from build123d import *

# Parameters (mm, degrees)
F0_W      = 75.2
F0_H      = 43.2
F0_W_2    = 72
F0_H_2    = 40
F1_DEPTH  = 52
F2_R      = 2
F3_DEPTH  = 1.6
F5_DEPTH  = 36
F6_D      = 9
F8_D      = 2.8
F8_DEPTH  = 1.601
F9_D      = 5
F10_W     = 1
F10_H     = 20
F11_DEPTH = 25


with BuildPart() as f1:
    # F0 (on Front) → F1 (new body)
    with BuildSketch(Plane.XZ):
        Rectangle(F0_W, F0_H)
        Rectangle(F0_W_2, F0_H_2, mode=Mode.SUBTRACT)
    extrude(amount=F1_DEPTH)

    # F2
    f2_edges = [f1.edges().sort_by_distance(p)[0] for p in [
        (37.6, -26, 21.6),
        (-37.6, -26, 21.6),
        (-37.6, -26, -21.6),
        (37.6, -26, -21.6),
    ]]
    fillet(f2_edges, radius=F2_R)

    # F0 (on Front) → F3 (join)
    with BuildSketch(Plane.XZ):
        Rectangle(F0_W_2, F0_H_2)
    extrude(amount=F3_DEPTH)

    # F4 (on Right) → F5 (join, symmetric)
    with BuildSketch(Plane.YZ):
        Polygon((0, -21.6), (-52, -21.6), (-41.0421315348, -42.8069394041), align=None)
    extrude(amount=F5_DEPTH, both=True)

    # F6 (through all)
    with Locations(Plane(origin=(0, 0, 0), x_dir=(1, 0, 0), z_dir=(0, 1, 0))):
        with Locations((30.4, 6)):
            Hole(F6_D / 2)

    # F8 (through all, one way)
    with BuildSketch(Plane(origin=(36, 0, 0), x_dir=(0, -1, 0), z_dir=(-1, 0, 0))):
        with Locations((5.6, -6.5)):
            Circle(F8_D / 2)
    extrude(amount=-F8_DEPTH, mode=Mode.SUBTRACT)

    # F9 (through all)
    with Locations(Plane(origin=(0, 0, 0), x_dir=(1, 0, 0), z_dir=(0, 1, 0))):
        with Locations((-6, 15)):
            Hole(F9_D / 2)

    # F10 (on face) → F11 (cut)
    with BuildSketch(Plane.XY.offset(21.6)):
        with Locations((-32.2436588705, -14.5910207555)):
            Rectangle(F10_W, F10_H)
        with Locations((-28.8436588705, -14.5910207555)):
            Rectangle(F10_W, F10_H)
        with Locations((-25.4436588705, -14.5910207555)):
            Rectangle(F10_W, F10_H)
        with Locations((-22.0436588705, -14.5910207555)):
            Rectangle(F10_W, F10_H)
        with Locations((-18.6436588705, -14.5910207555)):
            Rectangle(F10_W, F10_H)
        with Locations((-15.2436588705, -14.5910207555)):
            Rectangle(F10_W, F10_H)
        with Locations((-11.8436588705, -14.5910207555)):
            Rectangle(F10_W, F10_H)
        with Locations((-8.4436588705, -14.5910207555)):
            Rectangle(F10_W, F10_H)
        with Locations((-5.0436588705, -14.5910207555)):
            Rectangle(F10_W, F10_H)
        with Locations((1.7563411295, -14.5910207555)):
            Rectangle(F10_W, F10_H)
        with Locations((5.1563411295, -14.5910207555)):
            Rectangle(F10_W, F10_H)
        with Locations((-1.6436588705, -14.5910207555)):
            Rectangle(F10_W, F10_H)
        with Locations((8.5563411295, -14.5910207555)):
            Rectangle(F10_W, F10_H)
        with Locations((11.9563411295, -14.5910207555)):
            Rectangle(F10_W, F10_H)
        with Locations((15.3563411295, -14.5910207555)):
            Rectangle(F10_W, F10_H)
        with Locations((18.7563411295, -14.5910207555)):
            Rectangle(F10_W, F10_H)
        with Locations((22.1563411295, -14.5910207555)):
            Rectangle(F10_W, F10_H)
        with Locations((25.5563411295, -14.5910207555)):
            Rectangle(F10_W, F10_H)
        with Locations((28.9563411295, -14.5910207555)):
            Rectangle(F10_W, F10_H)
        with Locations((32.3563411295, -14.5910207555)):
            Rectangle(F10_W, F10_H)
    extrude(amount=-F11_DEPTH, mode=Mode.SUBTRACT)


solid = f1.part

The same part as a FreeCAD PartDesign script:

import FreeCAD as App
import Part
import Sketcher
from FreeCAD import Vector


def edges_at(feature, points):
    """Names of the edges that pass closest to the given points."""
    edges = feature.Shape.Edges
    near = lambda p: min(range(len(edges)), key=lambda i: edges[i].distToShape(Part.Vertex(*p))[0])
    return sorted({f"Edge{near(p) + 1}" for p in points})

doc = App.newDocument("Part")
body = doc.addObject("PartDesign::Body", "Body")

# Sketch on XZ plane
sketch1 = body.newObject("Sketcher::SketchObject", "Sketch")
sketch1.AttachmentSupport = (doc.getObject("XZ_Plane"), [""])
sketch1.MapMode = "FlatFace"
sketch1.addGeometry([
    Part.LineSegment(Vector(-38, 22, 0), Vector(-38, -22, 0)),  # 0
    Part.LineSegment(Vector(-38, -22, 0), Vector(38, -22, 0)),  # 1
    Part.LineSegment(Vector(38, -22, 0), Vector(38, 22, 0)),  # 2
    Part.LineSegment(Vector(38, 22, 0), Vector(-38, 22, 0)),  # 3
    Part.LineSegment(Vector(36, -20, 0), Vector(-36, -20, 0)),  # 4
    Part.LineSegment(Vector(-36, -20, 0), Vector(-36, 20, 0)),  # 5
    Part.LineSegment(Vector(-36, 20, 0), Vector(36, 20, 0)),  # 6
    Part.LineSegment(Vector(36, 20, 0), Vector(36, -20, 0)),  # 7
], False)
sketch1.addConstraint([
    Sketcher.Constraint("Coincident", 0, 2, 1, 1),
    Sketcher.Constraint("Coincident", 1, 2, 2, 1),
    Sketcher.Constraint("Coincident", 2, 2, 3, 1),
    Sketcher.Constraint("Coincident", 3, 2, 0, 1),
    Sketcher.Constraint("Coincident", 4, 2, 5, 1),
    Sketcher.Constraint("Coincident", 5, 2, 6, 1),
    Sketcher.Constraint("Coincident", 6, 2, 7, 1),
    Sketcher.Constraint("Coincident", 7, 2, 4, 1),
    Sketcher.Constraint("Vertical", 0),
    Sketcher.Constraint("Horizontal", 1),
    Sketcher.Constraint("Vertical", 2),
    Sketcher.Constraint("Horizontal", 3),
    Sketcher.Constraint("Horizontal", 4),
    Sketcher.Constraint("Vertical", 5),
    Sketcher.Constraint("Horizontal", 6),
    Sketcher.Constraint("Vertical", 7),
    Sketcher.Constraint("Symmetric", 0, 2, 2, 2, -1, 1),
    Sketcher.Constraint("Symmetric", 4, 2, 6, 2, -1, 1),
    Sketcher.Constraint("DistanceX", 4, 2, 4, 1, 72.0),
    Sketcher.Constraint("DistanceY", 5, 1, 5, 2, 40.0),
    Sketcher.Constraint("DistanceX", 1, 1, 1, 2, 75.2),
    Sketcher.Constraint("DistanceY", 0, 2, 0, 1, 43.2),
])
pad1 = body.newObject("PartDesign::Pad", "Pad")
pad1.Profile = sketch1
pad1.Length = 52
doc.recompute()

fillet = body.newObject("PartDesign::Fillet", "Fillet")
fillet.Base = (pad1, edges_at(pad1, [
    (37.6, -26, 21.6),
    (-37.6, -26, 21.6),
    (-37.6, -26, -21.6),
    (37.6, -26, -21.6),
]))
fillet.Radius = 2

# Sketch on XZ plane
sketch2 = body.newObject("Sketcher::SketchObject", "Sketch001")
sketch2.AttachmentSupport = (doc.getObject("XZ_Plane"), [""])
sketch2.MapMode = "FlatFace"
sketch2.addGeometry([
    Part.LineSegment(Vector(-36, 20, 0), Vector(-36, -20, 0)),
    Part.LineSegment(Vector(-36, -20, 0), Vector(36, -20, 0)),
    Part.LineSegment(Vector(36, -20, 0), Vector(36, 20, 0)),
    Part.LineSegment(Vector(36, 20, 0), Vector(-36, 20, 0)),
], False)
sketch2.addConstraint([
    Sketcher.Constraint("Coincident", 0, 2, 1, 1),
    Sketcher.Constraint("Coincident", 1, 2, 2, 1),
    Sketcher.Constraint("Coincident", 2, 2, 3, 1),
    Sketcher.Constraint("Coincident", 3, 2, 0, 1),
    Sketcher.Constraint("Vertical", 0),
    Sketcher.Constraint("Horizontal", 1),
    Sketcher.Constraint("Vertical", 2),
    Sketcher.Constraint("Horizontal", 3),
    Sketcher.Constraint("Symmetric", 0, 2, 2, 2, -1, 1),
    Sketcher.Constraint("DistanceX", 1, 1, 1, 2, 72.0),
    Sketcher.Constraint("DistanceY", 0, 2, 0, 1, 40.0),
])
pad2 = body.newObject("PartDesign::Pad", "Pad001")
pad2.Profile = sketch2
pad2.Length = 1.6

# Sketch on YZ plane
sketch3 = body.newObject("Sketcher::SketchObject", "Sketch002")
sketch3.AttachmentSupport = (doc.getObject("YZ_Plane"), [""])
sketch3.MapMode = "FlatFace"
sketch3.addGeometry([
    Part.LineSegment(Vector(0, -22, 0), Vector(-52, -22, 0)),
    Part.LineSegment(Vector(-52, -22, 0), Vector(-41, -43, 0)),
    Part.LineSegment(Vector(-41, -43, 0), Vector(0, -22, 0)),
], False)
sketch3.addConstraint([
    Sketcher.Constraint("Coincident", 0, 2, 1, 1),
    Sketcher.Constraint("Coincident", 1, 2, 2, 1),
    Sketcher.Constraint("Coincident", 2, 2, 0, 1),
    Sketcher.Constraint("Horizontal", 0),
    Sketcher.Constraint("PointOnObject", 2, 2, -2),
    Sketcher.Constraint("Perpendicular", 1, 2),
    Sketcher.Constraint("DistanceX", 0, 2, 0, 1, 52.0),
    Sketcher.Constraint("DistanceY", 0, 2, -1, 1, 21.6),
    Sketcher.Constraint("DistanceX", 1, 2, -1, 1, 41.042132),
])
pad3 = body.newObject("PartDesign::Pad", "Pad002")
pad3.Profile = sketch3
pad3.Length = 72
pad3.Midplane = True

# Sketch on XZ plane
sketch4 = body.newObject("Sketcher::SketchObject", "Sketch003")
sketch4.AttachmentSupport = (doc.getObject("XZ_Plane"), [""])
sketch4.MapMode = "FlatFace"
sketch4.addGeometry(Part.Circle(Vector(30.4, -6, 0), Vector(0, 0, 1), 4.5), False)
sketch4.addConstraint([
    Sketcher.Constraint("Diameter", 0, 9.0),
    Sketcher.Constraint("DistanceY", 0, 3, -1, 1, 6.0),
    Sketcher.Constraint("DistanceX", -1, 1, 0, 3, 30.4),
])
doc.recompute()
hole = body.newObject("PartDesign::Hole", "Hole")
hole.Profile = sketch4
hole.ThreadType = "None"
hole.Diameter = 9
hole.DepthType = "ThroughAll"
hole.Reversed = True

# Sketch on YZ plane
sketch5 = body.newObject("Sketcher::SketchObject", "Sketch004")
sketch5.AttachmentSupport = (doc.getObject("YZ_Plane"), [""])
sketch5.MapMode = "FlatFace"
sketch5.AttachmentOffset = App.Placement(Vector(0, 0, 36), App.Rotation())
sketch5.addGeometry(Part.Circle(Vector(-5.6, -6.5, 0), Vector(0, 0, 1), 1.4), False)
sketch5.addConstraint([
    Sketcher.Constraint("Diameter", 0, 2.8),
    Sketcher.Constraint("DistanceX", 0, 3, -1, 1, 5.6),
    Sketcher.Constraint("DistanceY", 0, 3, -1, 1, 6.5),
])
pocket1 = body.newObject("PartDesign::Pocket", "Pocket")
pocket1.Profile = sketch5
pocket1.Type = "ThroughAll"
pocket1.Reversed = True

# Sketch on XZ plane
sketch6 = body.newObject("Sketcher::SketchObject", "Sketch005")
sketch6.AttachmentSupport = (doc.getObject("XZ_Plane"), [""])
sketch6.MapMode = "FlatFace"
sketch6.addGeometry(Part.Circle(Vector(-6, -15, 0), Vector(0, 0, 1), 2.5), False)
sketch6.addConstraint([
    Sketcher.Constraint("Diameter", 0, 5.0),
    Sketcher.Constraint("DistanceX", 0, 3, -1, 1, 6.0),
    Sketcher.Constraint("DistanceY", 0, 3, -1, 1, 15.0),
])
doc.recompute()
hole2 = body.newObject("PartDesign::Hole", "Hole001")
hole2.Profile = sketch6
hole2.ThreadType = "None"
hole2.Diameter = 5
hole2.DepthType = "ThroughAll"
hole2.Reversed = True

# Sketch on XY plane
sketch7 = body.newObject("Sketcher::SketchObject", "Sketch006")
sketch7.AttachmentSupport = (doc.getObject("XY_Plane"), [""])
sketch7.MapMode = "FlatFace"
sketch7.AttachmentOffset = App.Placement(Vector(0, 0, 21.6), App.Rotation())
sketch7.addGeometry([
    Part.LineSegment(Vector(-32.7, -4.6, 0), Vector(-32.7, -24.6, 0)),  # 0
    Part.LineSegment(Vector(-32.7, -24.6, 0), Vector(-31.7, -24.6, 0)),  # 1
    Part.LineSegment(Vector(-31.7, -24.6, 0), Vector(-31.7, -4.6, 0)),  # 2
    Part.LineSegment(Vector(-31.7, -4.6, 0), Vector(-32.7, -4.6, 0)),  # 3
    Part.LineSegment(Vector(-29.3, -4.6, 0), Vector(-29.3, -24.6, 0)),  # 4
    Part.LineSegment(Vector(-29.3, -24.6, 0), Vector(-28.3, -24.6, 0)),  # 5
    Part.LineSegment(Vector(-28.3, -24.6, 0), Vector(-28.3, -4.6, 0)),  # 6
    Part.LineSegment(Vector(-28.3, -4.6, 0), Vector(-29.3, -4.6, 0)),  # 7
    Part.LineSegment(Vector(-25.9, -4.6, 0), Vector(-25.9, -24.6, 0)),  # 8
    Part.LineSegment(Vector(-25.9, -24.6, 0), Vector(-24.9, -24.6, 0)),  # 9
    Part.LineSegment(Vector(-24.9, -24.6, 0), Vector(-24.9, -4.6, 0)),  # 10
    Part.LineSegment(Vector(-24.9, -4.6, 0), Vector(-25.9, -4.6, 0)),  # 11
    Part.LineSegment(Vector(-22.5, -4.6, 0), Vector(-22.5, -24.6, 0)),  # 12
    Part.LineSegment(Vector(-22.5, -24.6, 0), Vector(-21.5, -24.6, 0)),  # 13
    Part.LineSegment(Vector(-21.5, -24.6, 0), Vector(-21.5, -4.6, 0)),  # 14
    Part.LineSegment(Vector(-21.5, -4.6, 0), Vector(-22.5, -4.6, 0)),  # 15
    Part.LineSegment(Vector(-19.1, -4.6, 0), Vector(-19.1, -24.6, 0)),  # 16
    Part.LineSegment(Vector(-19.1, -24.6, 0), Vector(-18.1, -24.6, 0)),  # 17
    Part.LineSegment(Vector(-18.1, -24.6, 0), Vector(-18.1, -4.6, 0)),  # 18
    Part.LineSegment(Vector(-18.1, -4.6, 0), Vector(-19.1, -4.6, 0)),  # 19
    Part.LineSegment(Vector(-15.7, -4.6, 0), Vector(-15.7, -24.6, 0)),  # 20
    Part.LineSegment(Vector(-15.7, -24.6, 0), Vector(-14.7, -24.6, 0)),  # 21
    Part.LineSegment(Vector(-14.7, -24.6, 0), Vector(-14.7, -4.6, 0)),  # 22
    Part.LineSegment(Vector(-14.7, -4.6, 0), Vector(-15.7, -4.6, 0)),  # 23
    Part.LineSegment(Vector(-12.3, -4.6, 0), Vector(-12.3, -24.6, 0)),  # 24
    Part.LineSegment(Vector(-12.3, -24.6, 0), Vector(-11.3, -24.6, 0)),  # 25
    Part.LineSegment(Vector(-11.3, -24.6, 0), Vector(-11.3, -4.6, 0)),  # 26
    Part.LineSegment(Vector(-11.3, -4.6, 0), Vector(-12.3, -4.6, 0)),  # 27
    Part.LineSegment(Vector(-8.9, -4.6, 0), Vector(-8.9, -24.6, 0)),  # 28
    Part.LineSegment(Vector(-8.9, -24.6, 0), Vector(-7.9, -24.6, 0)),  # 29
    Part.LineSegment(Vector(-7.9, -24.6, 0), Vector(-7.9, -4.6, 0)),  # 30
    Part.LineSegment(Vector(-7.9, -4.6, 0), Vector(-8.9, -4.6, 0)),  # 31
    Part.LineSegment(Vector(-5.5, -4.6, 0), Vector(-5.5, -24.6, 0)),  # 32
    Part.LineSegment(Vector(-5.5, -24.6, 0), Vector(-4.5, -24.6, 0)),  # 33
    Part.LineSegment(Vector(-4.5, -24.6, 0), Vector(-4.5, -4.6, 0)),  # 34
    Part.LineSegment(Vector(-4.5, -4.6, 0), Vector(-5.5, -4.6, 0)),  # 35
    Part.LineSegment(Vector(1.3, -4.6, 0), Vector(1.3, -24.6, 0)),  # 36
    Part.LineSegment(Vector(1.3, -24.6, 0), Vector(2.3, -24.6, 0)),  # 37
    Part.LineSegment(Vector(2.3, -24.6, 0), Vector(2.3, -4.6, 0)),  # 38
    Part.LineSegment(Vector(2.3, -4.6, 0), Vector(1.3, -4.6, 0)),  # 39
    Part.LineSegment(Vector(4.7, -4.6, 0), Vector(4.7, -24.6, 0)),  # 40
    Part.LineSegment(Vector(4.7, -24.6, 0), Vector(5.7, -24.6, 0)),  # 41
    Part.LineSegment(Vector(5.7, -24.6, 0), Vector(5.7, -4.6, 0)),  # 42
    Part.LineSegment(Vector(5.7, -4.6, 0), Vector(4.7, -4.6, 0)),  # 43
    Part.LineSegment(Vector(-2.1, -4.6, 0), Vector(-2.1, -24.6, 0)),  # 44
    Part.LineSegment(Vector(-2.1, -24.6, 0), Vector(-1.1, -24.6, 0)),  # 45
    Part.LineSegment(Vector(-1.1, -24.6, 0), Vector(-1.1, -4.6, 0)),  # 46
    Part.LineSegment(Vector(-1.1, -4.6, 0), Vector(-2.1, -4.6, 0)),  # 47
    Part.LineSegment(Vector(8.1, -4.6, 0), Vector(8.1, -24.6, 0)),  # 48
    Part.LineSegment(Vector(8.1, -24.6, 0), Vector(9.1, -24.6, 0)),  # 49
    Part.LineSegment(Vector(9.1, -24.6, 0), Vector(9.1, -4.6, 0)),  # 50
    Part.LineSegment(Vector(9.1, -4.6, 0), Vector(8.1, -4.6, 0)),  # 51
    Part.LineSegment(Vector(11.5, -4.6, 0), Vector(11.5, -24.6, 0)),  # 52
    Part.LineSegment(Vector(11.5, -24.6, 0), Vector(12.5, -24.6, 0)),  # 53
    Part.LineSegment(Vector(12.5, -24.6, 0), Vector(12.5, -4.6, 0)),  # 54
    Part.LineSegment(Vector(12.5, -4.6, 0), Vector(11.5, -4.6, 0)),  # 55
    Part.LineSegment(Vector(14.9, -4.6, 0), Vector(14.9, -24.6, 0)),  # 56
    Part.LineSegment(Vector(14.9, -24.6, 0), Vector(15.9, -24.6, 0)),  # 57
    Part.LineSegment(Vector(15.9, -24.6, 0), Vector(15.9, -4.6, 0)),  # 58
    Part.LineSegment(Vector(15.9, -4.6, 0), Vector(14.9, -4.6, 0)),  # 59
    Part.LineSegment(Vector(18.3, -4.6, 0), Vector(18.3, -24.6, 0)),  # 60
    Part.LineSegment(Vector(18.3, -24.6, 0), Vector(19.3, -24.6, 0)),  # 61
    Part.LineSegment(Vector(19.3, -24.6, 0), Vector(19.3, -4.6, 0)),  # 62
    Part.LineSegment(Vector(19.3, -4.6, 0), Vector(18.3, -4.6, 0)),  # 63
    Part.LineSegment(Vector(21.7, -4.6, 0), Vector(21.7, -24.6, 0)),  # 64
    Part.LineSegment(Vector(21.7, -24.6, 0), Vector(22.7, -24.6, 0)),  # 65
    Part.LineSegment(Vector(22.7, -24.6, 0), Vector(22.7, -4.6, 0)),  # 66
    Part.LineSegment(Vector(22.7, -4.6, 0), Vector(21.7, -4.6, 0)),  # 67
    Part.LineSegment(Vector(25.1, -4.6, 0), Vector(25.1, -24.6, 0)),  # 68
    Part.LineSegment(Vector(25.1, -24.6, 0), Vector(26.1, -24.6, 0)),  # 69
    Part.LineSegment(Vector(26.1, -24.6, 0), Vector(26.1, -4.6, 0)),  # 70
    Part.LineSegment(Vector(26.1, -4.6, 0), Vector(25.1, -4.6, 0)),  # 71
    Part.LineSegment(Vector(28.5, -4.6, 0), Vector(28.5, -24.6, 0)),  # 72
    Part.LineSegment(Vector(28.5, -24.6, 0), Vector(29.5, -24.6, 0)),  # 73
    Part.LineSegment(Vector(29.5, -24.6, 0), Vector(29.5, -4.6, 0)),  # 74
    Part.LineSegment(Vector(29.5, -4.6, 0), Vector(28.5, -4.6, 0)),  # 75
    Part.LineSegment(Vector(31.9, -4.6, 0), Vector(31.9, -24.6, 0)),  # 76
    Part.LineSegment(Vector(31.9, -24.6, 0), Vector(32.9, -24.6, 0)),  # 77
    Part.LineSegment(Vector(32.9, -24.6, 0), Vector(32.9, -4.6, 0)),  # 78
    Part.LineSegment(Vector(32.9, -4.6, 0), Vector(31.9, -4.6, 0)),  # 79
], False)
sketch7.addConstraint([
    Sketcher.Constraint("Coincident", 0, 2, 1, 1),
    Sketcher.Constraint("Coincident", 1, 2, 2, 1),
    Sketcher.Constraint("Coincident", 2, 2, 3, 1),
    Sketcher.Constraint("Coincident", 3, 2, 0, 1),
    Sketcher.Constraint("Coincident", 4, 2, 5, 1),
    Sketcher.Constraint("Coincident", 5, 2, 6, 1),
    Sketcher.Constraint("Coincident", 6, 2, 7, 1),
    Sketcher.Constraint("Coincident", 7, 2, 4, 1),
    Sketcher.Constraint("Coincident", 8, 2, 9, 1),
    Sketcher.Constraint("Coincident", 9, 2, 10, 1),
    Sketcher.Constraint("Coincident", 10, 2, 11, 1),
    Sketcher.Constraint("Coincident", 11, 2, 8, 1),
    Sketcher.Constraint("Coincident", 12, 2, 13, 1),
    Sketcher.Constraint("Coincident", 13, 2, 14, 1),
    Sketcher.Constraint("Coincident", 14, 2, 15, 1),
    Sketcher.Constraint("Coincident", 15, 2, 12, 1),
    Sketcher.Constraint("Coincident", 16, 2, 17, 1),
    Sketcher.Constraint("Coincident", 17, 2, 18, 1),
    Sketcher.Constraint("Coincident", 18, 2, 19, 1),
    Sketcher.Constraint("Coincident", 19, 2, 16, 1),
    Sketcher.Constraint("Coincident", 20, 2, 21, 1),
    Sketcher.Constraint("Coincident", 21, 2, 22, 1),
    Sketcher.Constraint("Coincident", 22, 2, 23, 1),
    Sketcher.Constraint("Coincident", 23, 2, 20, 1),
    Sketcher.Constraint("Coincident", 24, 2, 25, 1),
    Sketcher.Constraint("Coincident", 25, 2, 26, 1),
    Sketcher.Constraint("Coincident", 26, 2, 27, 1),
    Sketcher.Constraint("Coincident", 27, 2, 24, 1),
    Sketcher.Constraint("Coincident", 28, 2, 29, 1),
    Sketcher.Constraint("Coincident", 29, 2, 30, 1),
    Sketcher.Constraint("Coincident", 30, 2, 31, 1),
    Sketcher.Constraint("Coincident", 31, 2, 28, 1),
    Sketcher.Constraint("Coincident", 32, 2, 33, 1),
    Sketcher.Constraint("Coincident", 33, 2, 34, 1),
    Sketcher.Constraint("Coincident", 34, 2, 35, 1),
    Sketcher.Constraint("Coincident", 35, 2, 32, 1),
    Sketcher.Constraint("Coincident", 36, 2, 37, 1),
    Sketcher.Constraint("Coincident", 37, 2, 38, 1),
    Sketcher.Constraint("Coincident", 38, 2, 39, 1),
    Sketcher.Constraint("Coincident", 39, 2, 36, 1),
    Sketcher.Constraint("Coincident", 40, 2, 41, 1),
    Sketcher.Constraint("Coincident", 41, 2, 42, 1),
    Sketcher.Constraint("Coincident", 42, 2, 43, 1),
    Sketcher.Constraint("Coincident", 43, 2, 40, 1),
    Sketcher.Constraint("Coincident", 44, 2, 45, 1),
    Sketcher.Constraint("Coincident", 45, 2, 46, 1),
    Sketcher.Constraint("Coincident", 46, 2, 47, 1),
    Sketcher.Constraint("Coincident", 47, 2, 44, 1),
    Sketcher.Constraint("Coincident", 48, 2, 49, 1),
    Sketcher.Constraint("Coincident", 49, 2, 50, 1),
    Sketcher.Constraint("Coincident", 50, 2, 51, 1),
    Sketcher.Constraint("Coincident", 51, 2, 48, 1),
    Sketcher.Constraint("Coincident", 52, 2, 53, 1),
    Sketcher.Constraint("Coincident", 53, 2, 54, 1),
    Sketcher.Constraint("Coincident", 54, 2, 55, 1),
    Sketcher.Constraint("Coincident", 55, 2, 52, 1),
    Sketcher.Constraint("Coincident", 56, 2, 57, 1),
    Sketcher.Constraint("Coincident", 57, 2, 58, 1),
    Sketcher.Constraint("Coincident", 58, 2, 59, 1),
    Sketcher.Constraint("Coincident", 59, 2, 56, 1),
    Sketcher.Constraint("Coincident", 60, 2, 61, 1),
    Sketcher.Constraint("Coincident", 61, 2, 62, 1),
    Sketcher.Constraint("Coincident", 62, 2, 63, 1),
    Sketcher.Constraint("Coincident", 63, 2, 60, 1),
    Sketcher.Constraint("Coincident", 64, 2, 65, 1),
    Sketcher.Constraint("Coincident", 65, 2, 66, 1),
    Sketcher.Constraint("Coincident", 66, 2, 67, 1),
    Sketcher.Constraint("Coincident", 67, 2, 64, 1),
    Sketcher.Constraint("Coincident", 68, 2, 69, 1),
    Sketcher.Constraint("Coincident", 69, 2, 70, 1),
    Sketcher.Constraint("Coincident", 70, 2, 71, 1),
    Sketcher.Constraint("Coincident", 71, 2, 68, 1),
    Sketcher.Constraint("Coincident", 72, 2, 73, 1),
    Sketcher.Constraint("Coincident", 73, 2, 74, 1),
    Sketcher.Constraint("Coincident", 74, 2, 75, 1),
    Sketcher.Constraint("Coincident", 75, 2, 72, 1),
    Sketcher.Constraint("Coincident", 76, 2, 77, 1),
    Sketcher.Constraint("Coincident", 77, 2, 78, 1),
    Sketcher.Constraint("Coincident", 78, 2, 79, 1),
    Sketcher.Constraint("Coincident", 79, 2, 76, 1),
    Sketcher.Constraint("Vertical", 0),
    Sketcher.Constraint("Horizontal", 1),
    Sketcher.Constraint("Vertical", 2),
    Sketcher.Constraint("Horizontal", 3),
    Sketcher.Constraint("Vertical", 4),
    Sketcher.Constraint("Horizontal", 5),
    Sketcher.Constraint("Vertical", 6),
    Sketcher.Constraint("Horizontal", 7),
    Sketcher.Constraint("Vertical", 8),
    Sketcher.Constraint("Horizontal", 9),
    Sketcher.Constraint("Vertical", 10),
    Sketcher.Constraint("Horizontal", 11),
    Sketcher.Constraint("Vertical", 12),
    Sketcher.Constraint("Horizontal", 13),
    Sketcher.Constraint("Vertical", 14),
    Sketcher.Constraint("Horizontal", 15),
    Sketcher.Constraint("Vertical", 16),
    Sketcher.Constraint("Horizontal", 17),
    Sketcher.Constraint("Vertical", 18),
    Sketcher.Constraint("Horizontal", 19),
    Sketcher.Constraint("Vertical", 20),
    Sketcher.Constraint("Horizontal", 21),
    Sketcher.Constraint("Vertical", 22),
    Sketcher.Constraint("Horizontal", 23),
    Sketcher.Constraint("Vertical", 24),
    Sketcher.Constraint("Horizontal", 25),
    Sketcher.Constraint("Vertical", 26),
    Sketcher.Constraint("Horizontal", 27),
    Sketcher.Constraint("Vertical", 28),
    Sketcher.Constraint("Horizontal", 29),
    Sketcher.Constraint("Vertical", 30),
    Sketcher.Constraint("Horizontal", 31),
    Sketcher.Constraint("Vertical", 32),
    Sketcher.Constraint("Horizontal", 33),
    Sketcher.Constraint("Vertical", 34),
    Sketcher.Constraint("Horizontal", 35),
    Sketcher.Constraint("Vertical", 36),
    Sketcher.Constraint("Horizontal", 37),
    Sketcher.Constraint("Vertical", 38),
    Sketcher.Constraint("Horizontal", 39),
    Sketcher.Constraint("Vertical", 40),
    Sketcher.Constraint("Horizontal", 41),
    Sketcher.Constraint("Vertical", 42),
    Sketcher.Constraint("Horizontal", 43),
    Sketcher.Constraint("Vertical", 44),
    Sketcher.Constraint("Horizontal", 45),
    Sketcher.Constraint("Vertical", 46),
    Sketcher.Constraint("Horizontal", 47),
    Sketcher.Constraint("Vertical", 48),
    Sketcher.Constraint("Horizontal", 49),
    Sketcher.Constraint("Vertical", 50),
    Sketcher.Constraint("Horizontal", 51),
    Sketcher.Constraint("Vertical", 52),
    Sketcher.Constraint("Horizontal", 53),
    Sketcher.Constraint("Vertical", 54),
    Sketcher.Constraint("Horizontal", 55),
    Sketcher.Constraint("Vertical", 56),
    Sketcher.Constraint("Horizontal", 57),
    Sketcher.Constraint("Vertical", 58),
    Sketcher.Constraint("Horizontal", 59),
    Sketcher.Constraint("Vertical", 60),
    Sketcher.Constraint("Horizontal", 61),
    Sketcher.Constraint("Vertical", 62),
    Sketcher.Constraint("Horizontal", 63),
    Sketcher.Constraint("Vertical", 64),
    Sketcher.Constraint("Horizontal", 65),
    Sketcher.Constraint("Vertical", 66),
    Sketcher.Constraint("Horizontal", 67),
    Sketcher.Constraint("Vertical", 68),
    Sketcher.Constraint("Horizontal", 69),
    Sketcher.Constraint("Vertical", 70),
    Sketcher.Constraint("Horizontal", 71),
    Sketcher.Constraint("Vertical", 72),
    Sketcher.Constraint("Horizontal", 73),
    Sketcher.Constraint("Vertical", 74),
    Sketcher.Constraint("Horizontal", 75),
    Sketcher.Constraint("Vertical", 76),
    Sketcher.Constraint("Horizontal", 77),
    Sketcher.Constraint("Vertical", 78),
    Sketcher.Constraint("Horizontal", 79),
    Sketcher.Constraint("Horizontal", 1, 2, 4, 2),
    Sketcher.Constraint("Horizontal", 3, 2, 6, 2),
    Sketcher.Constraint("Horizontal", 5, 2, 8, 2),
    Sketcher.Constraint("Horizontal", 7, 2, 10, 2),
    Sketcher.Constraint("Horizontal", 9, 2, 12, 2),
    Sketcher.Constraint("Horizontal", 11, 2, 14, 2),
    Sketcher.Constraint("Horizontal", 13, 2, 16, 2),
    Sketcher.Constraint("Horizontal", 15, 2, 18, 2),
    Sketcher.Constraint("Horizontal", 17, 2, 20, 2),
    Sketcher.Constraint("Horizontal", 19, 2, 22, 2),
    Sketcher.Constraint("Horizontal", 21, 2, 24, 2),
    Sketcher.Constraint("Horizontal", 23, 2, 26, 2),
    Sketcher.Constraint("Horizontal", 25, 2, 28, 2),
    Sketcher.Constraint("Horizontal", 27, 2, 30, 2),
    Sketcher.Constraint("Horizontal", 29, 2, 32, 2),
    Sketcher.Constraint("Horizontal", 31, 2, 34, 2),
    Sketcher.Constraint("Horizontal", 33, 2, 36, 2),
    Sketcher.Constraint("Horizontal", 35, 2, 38, 2),
    Sketcher.Constraint("Horizontal", 37, 2, 40, 2),
    Sketcher.Constraint("Horizontal", 39, 2, 42, 2),
    Sketcher.Constraint("Horizontal", 41, 2, 44, 2),
    Sketcher.Constraint("Horizontal", 43, 2, 46, 2),
    Sketcher.Constraint("Horizontal", 45, 2, 48, 2),
    Sketcher.Constraint("Horizontal", 47, 2, 50, 2),
    Sketcher.Constraint("Horizontal", 49, 2, 52, 2),
    Sketcher.Constraint("Horizontal", 51, 2, 54, 2),
    Sketcher.Constraint("Horizontal", 53, 2, 56, 2),
    Sketcher.Constraint("Horizontal", 55, 2, 58, 2),
    Sketcher.Constraint("Horizontal", 57, 2, 60, 2),
    Sketcher.Constraint("Horizontal", 59, 2, 62, 2),
    Sketcher.Constraint("Horizontal", 61, 2, 64, 2),
    Sketcher.Constraint("Horizontal", 63, 2, 66, 2),
    Sketcher.Constraint("Horizontal", 65, 2, 68, 2),
    Sketcher.Constraint("Horizontal", 67, 2, 70, 2),
    Sketcher.Constraint("Horizontal", 69, 2, 72, 2),
    Sketcher.Constraint("Horizontal", 71, 2, 74, 2),
    Sketcher.Constraint("Horizontal", 73, 2, 76, 2),
    Sketcher.Constraint("Horizontal", 75, 2, 78, 2),
    Sketcher.Constraint("Equal", 3, 5),
    Sketcher.Constraint("Equal", 7, 9),
    Sketcher.Constraint("Equal", 11, 13),
    Sketcher.Constraint("Equal", 15, 17),
    Sketcher.Constraint("Equal", 19, 21),
    Sketcher.Constraint("Equal", 23, 25),
    Sketcher.Constraint("Equal", 27, 29),
    Sketcher.Constraint("Equal", 31, 33),
    Sketcher.Constraint("Equal", 35, 37),
    Sketcher.Constraint("Equal", 39, 41),
    Sketcher.Constraint("Equal", 43, 45),
    Sketcher.Constraint("Equal", 47, 49),
    Sketcher.Constraint("Equal", 51, 53),
    Sketcher.Constraint("Equal", 55, 57),
    Sketcher.Constraint("Equal", 59, 61),
    Sketcher.Constraint("Equal", 63, 65),
    Sketcher.Constraint("Equal", 67, 69),
    Sketcher.Constraint("Equal", 71, 73),
    Sketcher.Constraint("Equal", 75, 77),
    Sketcher.Constraint("DistanceX", 1, 1, 1, 2, 1.0),
    Sketcher.Constraint("DistanceY", 0, 2, 0, 1, 20.0),
    Sketcher.Constraint("DistanceX", 0, 2, -1, 1, 32.743659),
    Sketcher.Constraint("DistanceY", 0, 2, -1, 1, 24.591021),
    Sketcher.Constraint("DistanceX", 4, 2, -1, 1, 29.343659),
    Sketcher.Constraint("DistanceX", 8, 2, -1, 1, 25.943659),
    Sketcher.Constraint("DistanceX", 12, 2, -1, 1, 22.543659),
    Sketcher.Constraint("DistanceX", 16, 2, -1, 1, 19.143659),
    Sketcher.Constraint("DistanceX", 20, 2, -1, 1, 15.743659),
    Sketcher.Constraint("DistanceX", 24, 2, -1, 1, 12.343659),
    Sketcher.Constraint("DistanceX", 28, 2, -1, 1, 8.943659),
    Sketcher.Constraint("DistanceX", 32, 2, -1, 1, 5.543659),
    Sketcher.Constraint("DistanceX", -1, 1, 36, 2, 1.256341),
    Sketcher.Constraint("DistanceX", -1, 1, 40, 2, 4.656341),
    Sketcher.Constraint("DistanceX", 44, 2, -1, 1, 2.143659),
    Sketcher.Constraint("DistanceX", -1, 1, 48, 2, 8.056341),
    Sketcher.Constraint("DistanceX", -1, 1, 52, 2, 11.456341),
    Sketcher.Constraint("DistanceX", -1, 1, 56, 2, 14.856341),
    Sketcher.Constraint("DistanceX", -1, 1, 60, 2, 18.256341),
    Sketcher.Constraint("DistanceX", -1, 1, 64, 2, 21.656341),
    Sketcher.Constraint("DistanceX", -1, 1, 68, 2, 25.056341),
    Sketcher.Constraint("DistanceX", -1, 1, 72, 2, 28.456341),
    Sketcher.Constraint("DistanceX", -1, 1, 76, 2, 31.856341),
])
pocket2 = body.newObject("PartDesign::Pocket", "Pocket001")
pocket2.Profile = sketch7
pocket2.Length = 25

doc.recompute()
